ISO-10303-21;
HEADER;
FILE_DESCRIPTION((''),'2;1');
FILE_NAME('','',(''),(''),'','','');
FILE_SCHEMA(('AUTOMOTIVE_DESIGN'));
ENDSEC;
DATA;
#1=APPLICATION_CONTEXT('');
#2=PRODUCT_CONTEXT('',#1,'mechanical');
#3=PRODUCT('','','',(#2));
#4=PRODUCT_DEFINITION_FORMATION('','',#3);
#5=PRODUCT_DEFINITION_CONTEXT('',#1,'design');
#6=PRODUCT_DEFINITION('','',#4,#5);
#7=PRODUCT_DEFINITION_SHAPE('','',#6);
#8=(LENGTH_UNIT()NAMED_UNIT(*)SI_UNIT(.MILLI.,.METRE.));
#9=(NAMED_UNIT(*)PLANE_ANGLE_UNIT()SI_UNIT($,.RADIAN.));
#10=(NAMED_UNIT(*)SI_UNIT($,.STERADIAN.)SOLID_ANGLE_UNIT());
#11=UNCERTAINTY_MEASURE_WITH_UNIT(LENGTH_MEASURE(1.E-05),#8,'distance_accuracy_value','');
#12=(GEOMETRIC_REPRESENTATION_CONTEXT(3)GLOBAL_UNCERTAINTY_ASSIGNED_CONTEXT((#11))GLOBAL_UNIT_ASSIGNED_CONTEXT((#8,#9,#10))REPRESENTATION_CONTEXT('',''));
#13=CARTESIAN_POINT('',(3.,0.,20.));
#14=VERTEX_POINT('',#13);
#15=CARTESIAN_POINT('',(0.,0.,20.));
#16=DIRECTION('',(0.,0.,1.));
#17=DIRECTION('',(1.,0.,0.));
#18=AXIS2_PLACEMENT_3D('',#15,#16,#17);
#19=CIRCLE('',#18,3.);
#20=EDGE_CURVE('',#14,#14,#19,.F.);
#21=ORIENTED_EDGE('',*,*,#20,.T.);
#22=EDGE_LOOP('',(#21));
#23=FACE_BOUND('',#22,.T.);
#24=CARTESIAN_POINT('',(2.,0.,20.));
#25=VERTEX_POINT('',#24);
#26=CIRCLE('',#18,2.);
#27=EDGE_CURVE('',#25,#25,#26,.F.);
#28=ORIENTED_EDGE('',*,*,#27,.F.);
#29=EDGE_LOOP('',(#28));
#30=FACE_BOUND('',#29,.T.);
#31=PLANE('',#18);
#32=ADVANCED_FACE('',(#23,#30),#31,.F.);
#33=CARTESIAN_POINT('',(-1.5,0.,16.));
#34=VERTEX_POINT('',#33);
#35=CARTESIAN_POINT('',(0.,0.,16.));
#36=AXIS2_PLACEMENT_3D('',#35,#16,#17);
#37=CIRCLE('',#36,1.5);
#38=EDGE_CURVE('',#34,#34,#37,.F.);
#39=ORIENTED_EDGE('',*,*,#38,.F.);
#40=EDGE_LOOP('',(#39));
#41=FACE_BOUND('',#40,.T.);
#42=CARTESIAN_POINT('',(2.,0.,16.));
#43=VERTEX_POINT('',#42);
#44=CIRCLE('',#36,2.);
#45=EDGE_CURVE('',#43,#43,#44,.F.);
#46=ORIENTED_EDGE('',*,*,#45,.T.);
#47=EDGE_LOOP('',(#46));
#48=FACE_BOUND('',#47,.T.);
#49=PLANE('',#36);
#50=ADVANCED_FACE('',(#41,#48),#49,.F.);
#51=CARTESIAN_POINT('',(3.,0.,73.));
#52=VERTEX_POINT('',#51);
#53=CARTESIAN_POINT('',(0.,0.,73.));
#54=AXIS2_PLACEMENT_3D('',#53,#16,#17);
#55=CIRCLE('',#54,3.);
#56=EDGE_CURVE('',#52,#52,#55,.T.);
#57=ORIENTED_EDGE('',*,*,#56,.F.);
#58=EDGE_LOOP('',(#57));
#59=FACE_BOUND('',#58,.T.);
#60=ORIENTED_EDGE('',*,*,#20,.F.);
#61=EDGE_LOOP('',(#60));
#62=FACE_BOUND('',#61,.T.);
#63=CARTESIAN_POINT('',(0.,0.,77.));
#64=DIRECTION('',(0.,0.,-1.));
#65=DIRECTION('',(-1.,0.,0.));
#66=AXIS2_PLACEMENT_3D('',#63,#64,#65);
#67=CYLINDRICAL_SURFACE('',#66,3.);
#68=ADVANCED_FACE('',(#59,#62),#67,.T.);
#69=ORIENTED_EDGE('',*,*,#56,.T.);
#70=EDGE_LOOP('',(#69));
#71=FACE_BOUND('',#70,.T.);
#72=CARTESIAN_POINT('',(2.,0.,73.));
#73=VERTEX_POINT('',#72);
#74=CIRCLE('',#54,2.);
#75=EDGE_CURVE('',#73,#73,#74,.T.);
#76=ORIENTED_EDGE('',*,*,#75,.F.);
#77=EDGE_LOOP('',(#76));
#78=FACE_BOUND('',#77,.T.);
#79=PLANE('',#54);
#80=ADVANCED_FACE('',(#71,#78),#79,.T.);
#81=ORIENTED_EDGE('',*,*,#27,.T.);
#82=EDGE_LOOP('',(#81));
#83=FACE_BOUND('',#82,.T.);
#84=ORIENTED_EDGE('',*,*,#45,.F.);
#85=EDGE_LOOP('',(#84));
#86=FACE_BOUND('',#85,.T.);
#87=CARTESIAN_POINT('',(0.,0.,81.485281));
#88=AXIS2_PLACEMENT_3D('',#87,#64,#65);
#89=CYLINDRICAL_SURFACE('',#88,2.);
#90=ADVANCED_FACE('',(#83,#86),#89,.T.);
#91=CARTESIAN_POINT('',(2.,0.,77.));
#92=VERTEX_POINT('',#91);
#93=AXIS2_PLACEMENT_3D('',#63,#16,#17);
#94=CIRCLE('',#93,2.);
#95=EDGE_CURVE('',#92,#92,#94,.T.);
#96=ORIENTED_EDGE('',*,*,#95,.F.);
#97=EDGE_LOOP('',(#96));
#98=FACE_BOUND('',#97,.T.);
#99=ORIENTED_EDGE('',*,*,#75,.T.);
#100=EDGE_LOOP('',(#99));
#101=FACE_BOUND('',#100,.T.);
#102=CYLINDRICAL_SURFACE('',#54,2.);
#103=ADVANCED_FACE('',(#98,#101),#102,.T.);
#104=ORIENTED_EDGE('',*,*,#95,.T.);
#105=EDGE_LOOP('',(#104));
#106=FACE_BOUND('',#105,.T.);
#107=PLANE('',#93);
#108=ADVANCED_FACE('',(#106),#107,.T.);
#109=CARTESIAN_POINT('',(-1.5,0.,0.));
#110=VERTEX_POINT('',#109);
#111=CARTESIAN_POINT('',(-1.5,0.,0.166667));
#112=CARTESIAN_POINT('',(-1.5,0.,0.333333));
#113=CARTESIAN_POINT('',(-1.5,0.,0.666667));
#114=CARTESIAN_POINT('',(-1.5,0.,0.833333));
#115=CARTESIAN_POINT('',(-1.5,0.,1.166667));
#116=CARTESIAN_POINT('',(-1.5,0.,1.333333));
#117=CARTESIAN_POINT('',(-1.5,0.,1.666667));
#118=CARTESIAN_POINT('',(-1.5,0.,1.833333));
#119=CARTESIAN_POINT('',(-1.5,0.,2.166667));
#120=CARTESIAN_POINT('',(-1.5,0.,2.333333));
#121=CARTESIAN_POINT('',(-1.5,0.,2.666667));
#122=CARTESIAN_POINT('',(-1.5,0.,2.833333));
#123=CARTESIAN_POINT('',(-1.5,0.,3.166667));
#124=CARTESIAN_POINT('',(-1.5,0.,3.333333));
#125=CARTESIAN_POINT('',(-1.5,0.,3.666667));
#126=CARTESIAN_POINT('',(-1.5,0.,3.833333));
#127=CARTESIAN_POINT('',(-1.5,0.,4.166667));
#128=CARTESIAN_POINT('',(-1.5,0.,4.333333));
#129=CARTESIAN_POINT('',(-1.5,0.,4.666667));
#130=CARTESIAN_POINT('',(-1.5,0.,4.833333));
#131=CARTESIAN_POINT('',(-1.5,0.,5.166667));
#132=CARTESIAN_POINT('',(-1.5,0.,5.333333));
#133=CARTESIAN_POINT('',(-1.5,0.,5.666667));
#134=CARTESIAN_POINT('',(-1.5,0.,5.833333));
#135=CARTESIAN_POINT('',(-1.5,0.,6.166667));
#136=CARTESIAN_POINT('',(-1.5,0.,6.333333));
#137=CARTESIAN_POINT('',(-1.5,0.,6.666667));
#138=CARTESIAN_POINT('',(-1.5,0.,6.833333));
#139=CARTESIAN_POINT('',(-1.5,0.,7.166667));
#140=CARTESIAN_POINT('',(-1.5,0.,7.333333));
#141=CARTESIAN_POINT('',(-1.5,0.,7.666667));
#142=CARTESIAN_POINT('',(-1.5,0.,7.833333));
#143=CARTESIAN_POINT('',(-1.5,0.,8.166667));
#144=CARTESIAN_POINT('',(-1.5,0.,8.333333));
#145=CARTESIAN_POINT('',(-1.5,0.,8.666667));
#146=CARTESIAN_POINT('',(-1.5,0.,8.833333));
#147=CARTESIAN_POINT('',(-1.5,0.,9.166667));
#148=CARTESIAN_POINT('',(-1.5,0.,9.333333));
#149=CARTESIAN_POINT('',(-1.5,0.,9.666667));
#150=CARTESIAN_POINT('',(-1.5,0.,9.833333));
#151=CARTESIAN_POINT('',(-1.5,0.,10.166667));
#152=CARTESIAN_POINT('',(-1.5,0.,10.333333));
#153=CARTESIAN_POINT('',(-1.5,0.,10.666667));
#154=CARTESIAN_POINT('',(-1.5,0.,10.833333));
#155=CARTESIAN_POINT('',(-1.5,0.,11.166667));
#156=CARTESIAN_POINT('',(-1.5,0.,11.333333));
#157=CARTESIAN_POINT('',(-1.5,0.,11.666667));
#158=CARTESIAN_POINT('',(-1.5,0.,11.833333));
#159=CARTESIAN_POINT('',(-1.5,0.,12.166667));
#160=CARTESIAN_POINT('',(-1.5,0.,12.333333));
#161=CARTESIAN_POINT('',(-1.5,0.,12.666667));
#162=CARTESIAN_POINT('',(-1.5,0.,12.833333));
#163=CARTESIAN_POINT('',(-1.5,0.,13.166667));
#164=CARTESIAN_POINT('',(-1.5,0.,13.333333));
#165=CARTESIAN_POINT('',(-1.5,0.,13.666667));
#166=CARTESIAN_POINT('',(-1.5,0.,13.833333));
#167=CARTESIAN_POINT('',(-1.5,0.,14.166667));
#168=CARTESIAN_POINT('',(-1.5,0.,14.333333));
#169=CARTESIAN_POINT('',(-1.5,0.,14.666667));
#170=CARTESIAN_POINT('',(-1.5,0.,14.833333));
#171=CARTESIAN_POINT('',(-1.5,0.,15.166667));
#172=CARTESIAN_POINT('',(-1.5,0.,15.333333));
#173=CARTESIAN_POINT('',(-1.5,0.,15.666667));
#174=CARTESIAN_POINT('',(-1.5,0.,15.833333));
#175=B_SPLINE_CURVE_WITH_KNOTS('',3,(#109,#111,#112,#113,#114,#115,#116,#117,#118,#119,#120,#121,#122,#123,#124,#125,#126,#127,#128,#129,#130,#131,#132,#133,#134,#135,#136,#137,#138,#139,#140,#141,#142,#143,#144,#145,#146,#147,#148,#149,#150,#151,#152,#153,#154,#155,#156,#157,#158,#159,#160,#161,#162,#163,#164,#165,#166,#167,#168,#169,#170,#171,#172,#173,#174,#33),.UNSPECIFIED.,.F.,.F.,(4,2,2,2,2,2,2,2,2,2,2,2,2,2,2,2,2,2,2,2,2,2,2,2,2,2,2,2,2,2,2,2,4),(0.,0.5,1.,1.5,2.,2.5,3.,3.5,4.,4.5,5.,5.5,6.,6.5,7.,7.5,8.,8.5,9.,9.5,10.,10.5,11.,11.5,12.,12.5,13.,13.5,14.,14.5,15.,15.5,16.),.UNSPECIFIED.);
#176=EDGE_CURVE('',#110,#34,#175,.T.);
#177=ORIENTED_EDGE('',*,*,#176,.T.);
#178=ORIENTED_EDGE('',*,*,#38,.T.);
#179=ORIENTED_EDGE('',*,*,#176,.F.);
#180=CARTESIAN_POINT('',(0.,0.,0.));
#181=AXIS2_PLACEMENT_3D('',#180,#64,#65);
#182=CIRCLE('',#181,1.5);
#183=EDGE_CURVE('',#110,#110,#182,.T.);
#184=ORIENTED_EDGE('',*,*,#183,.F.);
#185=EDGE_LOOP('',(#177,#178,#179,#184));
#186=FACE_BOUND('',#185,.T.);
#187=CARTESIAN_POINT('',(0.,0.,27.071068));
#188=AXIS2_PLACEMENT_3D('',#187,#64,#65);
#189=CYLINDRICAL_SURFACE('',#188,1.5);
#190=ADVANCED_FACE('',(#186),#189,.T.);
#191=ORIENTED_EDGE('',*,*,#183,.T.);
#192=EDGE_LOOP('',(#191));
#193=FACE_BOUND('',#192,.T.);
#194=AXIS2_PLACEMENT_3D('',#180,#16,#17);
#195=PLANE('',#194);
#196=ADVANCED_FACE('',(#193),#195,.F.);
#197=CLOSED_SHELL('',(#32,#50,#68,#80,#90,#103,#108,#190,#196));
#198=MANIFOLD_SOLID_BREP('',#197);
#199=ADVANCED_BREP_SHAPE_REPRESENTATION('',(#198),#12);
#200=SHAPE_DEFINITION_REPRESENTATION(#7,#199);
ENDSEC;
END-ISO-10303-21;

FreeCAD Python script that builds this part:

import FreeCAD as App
import Part
import Sketcher

V = App.Vector

doc = App.newDocument("Part")
body = doc.addObject("PartDesign::Body", "Body")

# Sketch on XY plane
sketch1 = doc.addObject("Sketcher::SketchObject", "Sketch")
body.addObject(sketch1)
sketch1.AttachmentSupport = (doc.XY_Plane, [""])
sketch1.MapMode = "FlatFace"
sketch1.addGeometry(Part.Circle(V(0, 0, 0), V(0, 0, 1), 3), False)
sketch1.addConstraint([
    Sketcher.Constraint("Coincident", 0, 3, -1, 1),
    Sketcher.Constraint("Diameter", 0, 6.0),
])
pad1 = doc.addObject("PartDesign::Pad", "Pad")
body.addObject(pad1)
pad1.Profile = sketch1
pad1.Length = 77

# Sketch on XY plane
sketch2 = doc.addObject("Sketcher::SketchObject", "Sketch001")
body.addObject(sketch2)
sketch2.AttachmentSupport = (doc.XY_Plane, [""])
sketch2.MapMode = "FlatFace"
sketch2.AttachmentOffset = App.Placement(V(0, 0, 73), App.Rotation())
sketch2.addGeometry([
    Part.Circle(V(0, 0, 0), V(0, 0, 1), 3),
    Part.Circle(V(0, 0, 0), V(0, 0, 1), 2),
], False)
sketch2.addConstraint([
    Sketcher.Constraint("Coincident", 0, 3, -1, 1),
    Sketcher.Constraint("Coincident", 1, 3, -1, 1),
    Sketcher.Constraint("Diameter", 0, 6.0),
    Sketcher.Constraint("Diameter", 1, 4.0),
])
pocket1 = doc.addObject("PartDesign::Pocket", "Pocket")
body.addObject(pocket1)
pocket1.Profile = sketch2
pocket1.Length = 4
pocket1.Reversed = True

# Sketch on XY plane
sketch3 = doc.addObject("Sketcher::SketchObject", "Sketch002")
body.addObject(sketch3)
sketch3.AttachmentSupport = (doc.XY_Plane, [""])
sketch3.MapMode = "FlatFace"
sketch3.addGeometry([
    Part.Circle(V(0, 0, 0), V(0, 0, 1), 3),
    Part.Circle(V(0, 0, 0), V(0, 0, 1), 2),
], False)
sketch3.addConstraint([
    Sketcher.Constraint("Coincident", 0, 3, -1, 1),
    Sketcher.Constraint("Coincident", 1, 3, -1, 1),
    Sketcher.Constraint("Diameter", 0, 6.0),
    Sketcher.Constraint("Diameter", 1, 4.0),
])
pocket2 = doc.addObject("PartDesign::Pocket", "Pocket001")
body.addObject(pocket2)
pocket2.Profile = sketch3
pocket2.Length = 20
pocket2.Reversed = True

# Sketch on XY plane
sketch4 = doc.addObject("Sketcher::SketchObject", "Sketch003")
body.addObject(sketch4)
sketch4.AttachmentSupport = (doc.XY_Plane, [""])
sketch4.MapMode = "FlatFace"
sketch4.addGeometry([
    Part.Circle(V(0, 0, 0), V(0, 0, 1), 2.5),
    Part.Circle(V(0, 0, 0), V(0, 0, 1), 1.5),
], False)
sketch4.addConstraint([
    Sketcher.Constraint("Coincident", 0, 3, -1, 1),
    Sketcher.Constraint("Coincident", 1, 3, -1, 1),
    Sketcher.Constraint("Diameter", 0, 5.0),
    Sketcher.Constraint("Diameter", 1, 3.0),
])
pocket3 = doc.addObject("PartDesign::Pocket", "Pocket002")
body.addObject(pocket3)
pocket3.Profile = sketch4
pocket3.Length = 16
pocket3.Reversed = True

doc.recompute()
